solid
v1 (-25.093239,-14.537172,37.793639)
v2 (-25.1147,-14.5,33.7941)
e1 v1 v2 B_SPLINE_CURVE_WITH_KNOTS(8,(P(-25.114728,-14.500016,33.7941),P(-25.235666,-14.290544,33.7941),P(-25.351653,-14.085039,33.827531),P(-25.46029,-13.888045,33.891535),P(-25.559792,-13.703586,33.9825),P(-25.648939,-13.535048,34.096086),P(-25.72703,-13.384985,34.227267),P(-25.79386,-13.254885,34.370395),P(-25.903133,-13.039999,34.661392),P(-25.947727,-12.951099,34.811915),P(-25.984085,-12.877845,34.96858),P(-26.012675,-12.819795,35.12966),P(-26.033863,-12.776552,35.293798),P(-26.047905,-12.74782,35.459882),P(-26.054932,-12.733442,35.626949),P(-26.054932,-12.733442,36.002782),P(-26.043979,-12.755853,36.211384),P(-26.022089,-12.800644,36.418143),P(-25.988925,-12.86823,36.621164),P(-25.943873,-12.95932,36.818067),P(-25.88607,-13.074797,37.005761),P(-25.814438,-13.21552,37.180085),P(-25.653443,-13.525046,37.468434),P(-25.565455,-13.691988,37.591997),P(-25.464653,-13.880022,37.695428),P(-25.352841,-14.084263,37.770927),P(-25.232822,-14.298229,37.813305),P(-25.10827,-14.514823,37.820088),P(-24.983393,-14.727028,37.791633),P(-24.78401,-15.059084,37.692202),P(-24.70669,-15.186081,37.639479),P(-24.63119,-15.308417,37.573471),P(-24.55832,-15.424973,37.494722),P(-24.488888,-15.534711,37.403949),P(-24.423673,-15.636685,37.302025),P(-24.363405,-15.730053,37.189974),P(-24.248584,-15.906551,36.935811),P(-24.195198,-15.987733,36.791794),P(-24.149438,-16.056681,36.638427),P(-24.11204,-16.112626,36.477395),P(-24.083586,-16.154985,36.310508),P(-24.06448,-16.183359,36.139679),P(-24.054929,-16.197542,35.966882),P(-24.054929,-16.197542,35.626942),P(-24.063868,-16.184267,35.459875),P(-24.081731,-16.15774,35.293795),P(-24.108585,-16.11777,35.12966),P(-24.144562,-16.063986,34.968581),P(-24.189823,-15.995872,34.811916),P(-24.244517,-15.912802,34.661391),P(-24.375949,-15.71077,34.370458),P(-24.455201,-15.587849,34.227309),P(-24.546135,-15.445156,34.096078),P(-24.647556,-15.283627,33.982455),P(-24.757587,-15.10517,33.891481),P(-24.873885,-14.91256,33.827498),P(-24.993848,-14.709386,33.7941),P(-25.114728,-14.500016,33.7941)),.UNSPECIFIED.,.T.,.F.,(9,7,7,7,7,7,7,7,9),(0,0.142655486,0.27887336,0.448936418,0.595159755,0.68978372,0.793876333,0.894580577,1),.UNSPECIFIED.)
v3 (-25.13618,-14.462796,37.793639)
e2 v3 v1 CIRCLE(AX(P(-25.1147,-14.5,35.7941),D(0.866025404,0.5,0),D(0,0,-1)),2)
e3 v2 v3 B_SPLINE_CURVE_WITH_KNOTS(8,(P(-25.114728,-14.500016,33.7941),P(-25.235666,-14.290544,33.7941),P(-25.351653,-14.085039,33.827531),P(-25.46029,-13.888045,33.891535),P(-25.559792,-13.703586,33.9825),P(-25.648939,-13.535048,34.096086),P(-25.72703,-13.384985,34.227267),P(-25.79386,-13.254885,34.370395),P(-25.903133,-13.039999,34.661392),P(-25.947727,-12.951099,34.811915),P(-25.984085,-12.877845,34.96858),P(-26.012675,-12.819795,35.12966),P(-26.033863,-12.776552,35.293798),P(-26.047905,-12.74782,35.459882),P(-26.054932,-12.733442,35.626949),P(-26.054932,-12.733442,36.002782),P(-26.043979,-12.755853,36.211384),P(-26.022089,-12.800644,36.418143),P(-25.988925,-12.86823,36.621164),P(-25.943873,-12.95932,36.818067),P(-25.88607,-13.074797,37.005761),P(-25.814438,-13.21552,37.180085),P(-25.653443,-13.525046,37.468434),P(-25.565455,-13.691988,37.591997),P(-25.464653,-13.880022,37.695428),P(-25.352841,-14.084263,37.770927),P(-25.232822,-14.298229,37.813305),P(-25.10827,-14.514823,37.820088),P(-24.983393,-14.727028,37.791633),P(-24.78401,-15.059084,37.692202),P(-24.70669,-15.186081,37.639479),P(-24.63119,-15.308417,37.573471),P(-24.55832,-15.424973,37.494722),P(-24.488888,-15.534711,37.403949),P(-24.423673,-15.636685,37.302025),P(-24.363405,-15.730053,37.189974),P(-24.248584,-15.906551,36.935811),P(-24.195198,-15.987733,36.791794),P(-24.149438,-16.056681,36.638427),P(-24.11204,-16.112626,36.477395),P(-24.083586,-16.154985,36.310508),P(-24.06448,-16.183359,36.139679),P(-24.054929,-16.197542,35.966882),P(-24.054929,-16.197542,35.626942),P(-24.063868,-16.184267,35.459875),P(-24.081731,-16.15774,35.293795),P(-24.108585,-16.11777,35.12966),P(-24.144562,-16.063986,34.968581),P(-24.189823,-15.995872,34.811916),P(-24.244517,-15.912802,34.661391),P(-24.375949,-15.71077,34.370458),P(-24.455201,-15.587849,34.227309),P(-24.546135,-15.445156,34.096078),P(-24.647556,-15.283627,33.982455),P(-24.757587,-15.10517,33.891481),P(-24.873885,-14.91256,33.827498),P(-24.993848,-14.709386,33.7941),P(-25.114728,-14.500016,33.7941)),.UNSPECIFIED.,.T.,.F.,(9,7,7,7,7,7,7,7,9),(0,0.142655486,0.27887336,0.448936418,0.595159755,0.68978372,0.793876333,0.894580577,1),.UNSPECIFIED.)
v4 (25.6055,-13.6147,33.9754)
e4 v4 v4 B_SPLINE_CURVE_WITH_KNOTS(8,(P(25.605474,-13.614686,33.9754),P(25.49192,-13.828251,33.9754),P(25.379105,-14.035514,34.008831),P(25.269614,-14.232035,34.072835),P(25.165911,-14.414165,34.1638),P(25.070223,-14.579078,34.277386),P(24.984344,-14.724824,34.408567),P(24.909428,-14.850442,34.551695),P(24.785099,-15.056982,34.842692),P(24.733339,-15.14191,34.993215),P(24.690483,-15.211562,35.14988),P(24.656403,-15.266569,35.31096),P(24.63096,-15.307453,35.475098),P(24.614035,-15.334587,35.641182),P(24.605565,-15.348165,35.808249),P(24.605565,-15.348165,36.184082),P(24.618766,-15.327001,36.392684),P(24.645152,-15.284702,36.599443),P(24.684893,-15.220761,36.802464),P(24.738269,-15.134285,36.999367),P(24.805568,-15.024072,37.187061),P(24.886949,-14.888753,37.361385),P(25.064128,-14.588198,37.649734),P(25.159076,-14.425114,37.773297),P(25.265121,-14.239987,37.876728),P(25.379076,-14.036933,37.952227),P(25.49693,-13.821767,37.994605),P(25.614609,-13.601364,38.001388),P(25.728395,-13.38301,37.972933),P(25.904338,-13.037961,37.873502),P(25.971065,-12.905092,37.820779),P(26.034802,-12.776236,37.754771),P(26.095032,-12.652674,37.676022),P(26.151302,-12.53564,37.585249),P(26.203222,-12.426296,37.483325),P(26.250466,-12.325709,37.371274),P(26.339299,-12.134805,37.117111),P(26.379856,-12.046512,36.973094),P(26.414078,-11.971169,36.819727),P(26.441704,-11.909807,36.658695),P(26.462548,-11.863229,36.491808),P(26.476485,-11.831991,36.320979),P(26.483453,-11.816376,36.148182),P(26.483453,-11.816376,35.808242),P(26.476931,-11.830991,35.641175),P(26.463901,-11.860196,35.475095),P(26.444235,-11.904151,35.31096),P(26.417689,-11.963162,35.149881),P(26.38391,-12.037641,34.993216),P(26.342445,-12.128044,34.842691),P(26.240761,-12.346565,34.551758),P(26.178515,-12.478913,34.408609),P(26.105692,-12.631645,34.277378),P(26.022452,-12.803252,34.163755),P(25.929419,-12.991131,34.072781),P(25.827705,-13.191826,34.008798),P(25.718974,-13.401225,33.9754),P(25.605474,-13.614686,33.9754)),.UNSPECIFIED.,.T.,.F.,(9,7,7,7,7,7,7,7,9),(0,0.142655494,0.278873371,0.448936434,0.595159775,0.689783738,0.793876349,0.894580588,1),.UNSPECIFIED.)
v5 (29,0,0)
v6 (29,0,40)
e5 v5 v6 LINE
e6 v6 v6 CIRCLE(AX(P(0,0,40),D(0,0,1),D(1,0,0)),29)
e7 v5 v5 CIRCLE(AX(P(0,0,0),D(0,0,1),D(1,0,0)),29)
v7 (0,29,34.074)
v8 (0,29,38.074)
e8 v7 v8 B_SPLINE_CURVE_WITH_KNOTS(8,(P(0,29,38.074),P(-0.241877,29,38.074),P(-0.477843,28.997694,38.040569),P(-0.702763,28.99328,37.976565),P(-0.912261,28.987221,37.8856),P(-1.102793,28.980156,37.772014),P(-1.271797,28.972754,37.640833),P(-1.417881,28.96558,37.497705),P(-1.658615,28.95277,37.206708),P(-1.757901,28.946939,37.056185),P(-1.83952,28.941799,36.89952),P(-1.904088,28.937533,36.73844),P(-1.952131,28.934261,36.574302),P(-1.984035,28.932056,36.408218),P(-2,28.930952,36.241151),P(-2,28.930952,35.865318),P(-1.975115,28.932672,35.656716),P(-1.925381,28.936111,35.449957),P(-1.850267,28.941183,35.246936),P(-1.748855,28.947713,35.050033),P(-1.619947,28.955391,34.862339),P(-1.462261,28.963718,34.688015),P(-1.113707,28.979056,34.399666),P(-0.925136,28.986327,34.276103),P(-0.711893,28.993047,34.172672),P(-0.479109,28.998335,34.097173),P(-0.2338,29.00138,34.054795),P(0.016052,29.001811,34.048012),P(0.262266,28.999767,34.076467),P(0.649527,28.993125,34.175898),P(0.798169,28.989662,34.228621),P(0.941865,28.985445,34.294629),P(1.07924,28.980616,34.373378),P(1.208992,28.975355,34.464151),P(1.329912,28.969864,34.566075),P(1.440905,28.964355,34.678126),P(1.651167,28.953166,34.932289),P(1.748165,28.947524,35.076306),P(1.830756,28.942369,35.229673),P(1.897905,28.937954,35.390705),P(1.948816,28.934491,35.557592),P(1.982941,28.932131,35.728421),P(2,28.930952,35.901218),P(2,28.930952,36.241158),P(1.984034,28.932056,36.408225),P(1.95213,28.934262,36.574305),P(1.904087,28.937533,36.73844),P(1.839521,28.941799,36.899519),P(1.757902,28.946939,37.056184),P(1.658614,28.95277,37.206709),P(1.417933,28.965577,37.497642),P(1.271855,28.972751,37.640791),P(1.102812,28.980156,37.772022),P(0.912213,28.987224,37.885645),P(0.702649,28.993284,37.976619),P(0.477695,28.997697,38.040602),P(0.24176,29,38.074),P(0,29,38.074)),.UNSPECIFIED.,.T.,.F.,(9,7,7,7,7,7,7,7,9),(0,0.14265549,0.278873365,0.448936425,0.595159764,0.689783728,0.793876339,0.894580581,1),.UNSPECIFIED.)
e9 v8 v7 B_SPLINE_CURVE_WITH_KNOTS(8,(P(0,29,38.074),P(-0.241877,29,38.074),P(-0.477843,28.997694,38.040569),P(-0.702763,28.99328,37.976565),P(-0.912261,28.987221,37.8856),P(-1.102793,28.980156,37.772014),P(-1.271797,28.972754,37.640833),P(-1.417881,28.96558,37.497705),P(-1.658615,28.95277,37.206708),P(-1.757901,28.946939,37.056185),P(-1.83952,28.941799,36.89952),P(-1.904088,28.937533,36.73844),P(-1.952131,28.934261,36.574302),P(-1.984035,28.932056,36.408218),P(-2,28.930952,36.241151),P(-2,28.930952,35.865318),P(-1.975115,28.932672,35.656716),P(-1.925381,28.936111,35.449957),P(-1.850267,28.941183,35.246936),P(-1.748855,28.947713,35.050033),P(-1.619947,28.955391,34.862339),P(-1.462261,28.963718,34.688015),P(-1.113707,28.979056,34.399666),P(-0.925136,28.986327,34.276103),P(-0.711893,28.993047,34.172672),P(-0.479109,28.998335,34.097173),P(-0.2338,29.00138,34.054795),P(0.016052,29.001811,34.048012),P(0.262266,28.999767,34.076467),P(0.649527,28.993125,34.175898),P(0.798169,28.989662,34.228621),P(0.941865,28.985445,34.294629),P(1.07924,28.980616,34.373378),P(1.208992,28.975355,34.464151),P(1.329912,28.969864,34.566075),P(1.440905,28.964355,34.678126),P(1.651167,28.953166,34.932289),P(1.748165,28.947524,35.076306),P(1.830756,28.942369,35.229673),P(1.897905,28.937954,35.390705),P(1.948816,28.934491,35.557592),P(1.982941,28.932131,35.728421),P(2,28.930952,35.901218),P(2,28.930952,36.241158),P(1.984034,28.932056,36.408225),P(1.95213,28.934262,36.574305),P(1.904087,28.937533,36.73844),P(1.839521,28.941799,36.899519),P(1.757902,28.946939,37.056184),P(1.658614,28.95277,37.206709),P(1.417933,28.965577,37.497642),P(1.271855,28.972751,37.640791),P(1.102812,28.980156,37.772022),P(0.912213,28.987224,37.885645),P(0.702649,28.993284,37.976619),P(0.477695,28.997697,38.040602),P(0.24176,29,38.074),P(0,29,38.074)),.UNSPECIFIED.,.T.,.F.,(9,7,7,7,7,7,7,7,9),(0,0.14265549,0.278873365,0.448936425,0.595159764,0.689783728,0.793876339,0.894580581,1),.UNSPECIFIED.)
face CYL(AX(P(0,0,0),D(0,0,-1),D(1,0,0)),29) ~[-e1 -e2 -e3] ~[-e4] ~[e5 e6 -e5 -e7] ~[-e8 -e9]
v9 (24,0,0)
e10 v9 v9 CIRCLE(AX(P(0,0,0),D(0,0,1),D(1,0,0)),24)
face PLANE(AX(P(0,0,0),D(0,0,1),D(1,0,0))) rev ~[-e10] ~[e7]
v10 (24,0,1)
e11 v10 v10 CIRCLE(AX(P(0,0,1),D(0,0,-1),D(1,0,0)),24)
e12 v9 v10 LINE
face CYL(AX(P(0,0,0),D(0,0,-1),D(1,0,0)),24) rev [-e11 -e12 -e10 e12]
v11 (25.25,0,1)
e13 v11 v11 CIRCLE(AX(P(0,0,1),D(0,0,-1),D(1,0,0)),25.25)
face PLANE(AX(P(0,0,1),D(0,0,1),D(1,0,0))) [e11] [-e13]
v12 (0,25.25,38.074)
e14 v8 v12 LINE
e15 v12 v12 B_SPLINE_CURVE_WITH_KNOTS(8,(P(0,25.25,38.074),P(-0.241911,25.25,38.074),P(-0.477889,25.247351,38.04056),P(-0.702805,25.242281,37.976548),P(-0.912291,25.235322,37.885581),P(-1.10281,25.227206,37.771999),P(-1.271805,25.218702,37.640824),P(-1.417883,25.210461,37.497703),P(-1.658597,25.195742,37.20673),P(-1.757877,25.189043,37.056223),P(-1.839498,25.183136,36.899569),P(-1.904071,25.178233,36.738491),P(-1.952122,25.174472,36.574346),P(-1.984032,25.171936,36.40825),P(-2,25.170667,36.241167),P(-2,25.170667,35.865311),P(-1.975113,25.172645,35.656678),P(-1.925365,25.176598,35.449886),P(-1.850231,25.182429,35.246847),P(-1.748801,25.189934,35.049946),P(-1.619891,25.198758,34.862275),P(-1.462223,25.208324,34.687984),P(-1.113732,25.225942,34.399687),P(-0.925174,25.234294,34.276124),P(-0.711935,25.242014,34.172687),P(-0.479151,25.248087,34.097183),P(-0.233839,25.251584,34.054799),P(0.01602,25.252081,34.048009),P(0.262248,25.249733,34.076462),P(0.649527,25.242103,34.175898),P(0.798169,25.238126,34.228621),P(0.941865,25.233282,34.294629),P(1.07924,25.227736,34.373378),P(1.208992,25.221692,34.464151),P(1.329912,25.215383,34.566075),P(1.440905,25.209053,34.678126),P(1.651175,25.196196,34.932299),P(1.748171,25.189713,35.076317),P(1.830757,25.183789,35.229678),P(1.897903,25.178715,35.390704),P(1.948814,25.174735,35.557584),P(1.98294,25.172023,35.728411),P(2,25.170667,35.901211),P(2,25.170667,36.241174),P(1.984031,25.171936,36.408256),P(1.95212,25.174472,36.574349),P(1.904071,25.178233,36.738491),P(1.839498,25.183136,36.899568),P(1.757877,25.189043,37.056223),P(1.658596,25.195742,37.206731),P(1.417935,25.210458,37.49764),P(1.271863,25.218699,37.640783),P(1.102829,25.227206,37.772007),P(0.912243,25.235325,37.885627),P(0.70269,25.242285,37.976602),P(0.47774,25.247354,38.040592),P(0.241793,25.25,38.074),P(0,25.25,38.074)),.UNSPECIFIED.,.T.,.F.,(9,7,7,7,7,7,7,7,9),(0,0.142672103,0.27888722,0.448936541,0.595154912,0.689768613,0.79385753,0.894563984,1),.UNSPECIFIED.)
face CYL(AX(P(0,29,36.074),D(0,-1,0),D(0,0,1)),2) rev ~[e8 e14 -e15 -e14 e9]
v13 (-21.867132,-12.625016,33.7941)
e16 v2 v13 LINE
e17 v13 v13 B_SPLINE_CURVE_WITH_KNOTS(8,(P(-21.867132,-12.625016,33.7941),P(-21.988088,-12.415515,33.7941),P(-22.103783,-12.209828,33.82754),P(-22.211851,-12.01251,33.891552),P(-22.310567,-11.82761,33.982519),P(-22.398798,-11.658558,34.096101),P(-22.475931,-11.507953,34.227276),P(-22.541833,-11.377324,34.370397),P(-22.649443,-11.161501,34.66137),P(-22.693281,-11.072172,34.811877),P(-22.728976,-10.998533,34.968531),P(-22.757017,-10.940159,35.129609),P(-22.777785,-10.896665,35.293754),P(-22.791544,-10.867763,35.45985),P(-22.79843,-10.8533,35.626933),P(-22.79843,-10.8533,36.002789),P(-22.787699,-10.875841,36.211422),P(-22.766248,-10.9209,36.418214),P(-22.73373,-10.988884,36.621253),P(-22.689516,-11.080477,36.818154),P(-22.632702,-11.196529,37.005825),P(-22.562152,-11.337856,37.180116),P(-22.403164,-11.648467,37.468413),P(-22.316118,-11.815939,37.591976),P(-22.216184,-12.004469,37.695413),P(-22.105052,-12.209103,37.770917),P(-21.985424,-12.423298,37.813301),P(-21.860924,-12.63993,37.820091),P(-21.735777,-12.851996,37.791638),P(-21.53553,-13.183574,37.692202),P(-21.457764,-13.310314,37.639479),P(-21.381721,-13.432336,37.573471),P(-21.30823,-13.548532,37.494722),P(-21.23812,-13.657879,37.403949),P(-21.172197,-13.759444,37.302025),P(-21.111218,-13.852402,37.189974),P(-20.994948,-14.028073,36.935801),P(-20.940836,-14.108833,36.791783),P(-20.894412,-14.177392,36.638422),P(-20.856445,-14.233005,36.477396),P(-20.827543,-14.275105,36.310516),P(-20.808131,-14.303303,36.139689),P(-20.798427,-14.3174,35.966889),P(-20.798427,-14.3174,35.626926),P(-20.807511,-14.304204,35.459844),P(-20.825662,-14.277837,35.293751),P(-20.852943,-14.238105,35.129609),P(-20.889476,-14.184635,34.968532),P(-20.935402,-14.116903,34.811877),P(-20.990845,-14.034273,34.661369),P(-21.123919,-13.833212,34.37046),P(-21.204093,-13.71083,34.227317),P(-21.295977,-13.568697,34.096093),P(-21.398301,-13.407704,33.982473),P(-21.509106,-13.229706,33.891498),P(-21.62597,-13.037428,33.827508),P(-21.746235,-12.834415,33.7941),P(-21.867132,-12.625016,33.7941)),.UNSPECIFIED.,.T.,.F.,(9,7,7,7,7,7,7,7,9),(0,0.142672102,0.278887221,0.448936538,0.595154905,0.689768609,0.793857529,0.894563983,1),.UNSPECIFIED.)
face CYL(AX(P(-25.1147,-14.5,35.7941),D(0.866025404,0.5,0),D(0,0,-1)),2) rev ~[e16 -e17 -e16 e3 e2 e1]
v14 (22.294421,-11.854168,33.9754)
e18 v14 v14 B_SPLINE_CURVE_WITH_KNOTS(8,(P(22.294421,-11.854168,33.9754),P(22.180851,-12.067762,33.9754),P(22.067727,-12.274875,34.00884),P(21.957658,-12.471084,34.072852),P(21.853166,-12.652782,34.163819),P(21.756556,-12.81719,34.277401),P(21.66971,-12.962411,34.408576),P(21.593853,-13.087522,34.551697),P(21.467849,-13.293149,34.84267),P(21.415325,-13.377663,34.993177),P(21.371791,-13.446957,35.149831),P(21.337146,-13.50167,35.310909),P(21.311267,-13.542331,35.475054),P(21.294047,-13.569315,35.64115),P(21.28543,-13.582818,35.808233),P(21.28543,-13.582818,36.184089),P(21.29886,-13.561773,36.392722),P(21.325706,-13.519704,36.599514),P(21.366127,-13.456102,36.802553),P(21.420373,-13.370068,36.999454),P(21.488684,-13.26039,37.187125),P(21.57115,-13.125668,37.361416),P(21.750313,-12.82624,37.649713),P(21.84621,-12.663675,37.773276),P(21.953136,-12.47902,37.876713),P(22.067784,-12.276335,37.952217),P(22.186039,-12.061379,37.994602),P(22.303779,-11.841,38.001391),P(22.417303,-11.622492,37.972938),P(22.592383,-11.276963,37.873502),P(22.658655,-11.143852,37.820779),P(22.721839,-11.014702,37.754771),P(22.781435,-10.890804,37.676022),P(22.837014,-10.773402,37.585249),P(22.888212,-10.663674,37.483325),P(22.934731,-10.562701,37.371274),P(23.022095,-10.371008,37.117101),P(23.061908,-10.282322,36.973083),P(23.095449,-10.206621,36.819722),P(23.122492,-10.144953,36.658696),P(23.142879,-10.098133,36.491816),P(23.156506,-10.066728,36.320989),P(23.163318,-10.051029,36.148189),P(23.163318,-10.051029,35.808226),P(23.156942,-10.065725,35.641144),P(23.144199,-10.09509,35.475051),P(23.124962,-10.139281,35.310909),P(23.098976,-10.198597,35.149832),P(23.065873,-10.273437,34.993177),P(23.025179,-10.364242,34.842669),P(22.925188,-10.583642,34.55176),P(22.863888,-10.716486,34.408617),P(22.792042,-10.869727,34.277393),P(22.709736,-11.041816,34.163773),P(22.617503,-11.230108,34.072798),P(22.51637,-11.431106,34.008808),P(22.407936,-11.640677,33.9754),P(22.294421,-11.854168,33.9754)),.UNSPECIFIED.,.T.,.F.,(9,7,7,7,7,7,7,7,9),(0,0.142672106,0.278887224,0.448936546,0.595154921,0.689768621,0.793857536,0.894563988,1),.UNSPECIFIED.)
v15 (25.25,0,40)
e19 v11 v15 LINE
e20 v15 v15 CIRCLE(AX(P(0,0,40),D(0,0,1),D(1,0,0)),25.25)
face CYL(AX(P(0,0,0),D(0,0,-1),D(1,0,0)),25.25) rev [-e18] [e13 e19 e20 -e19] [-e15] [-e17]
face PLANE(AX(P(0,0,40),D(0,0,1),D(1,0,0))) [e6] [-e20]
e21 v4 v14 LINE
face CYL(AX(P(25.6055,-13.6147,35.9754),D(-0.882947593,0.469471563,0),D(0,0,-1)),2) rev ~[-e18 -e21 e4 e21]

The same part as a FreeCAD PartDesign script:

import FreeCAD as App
import Part
import Sketcher

V = App.Vector
Q = App.Units.Quantity

doc = App.newDocument("Part")
body = doc.addObject("PartDesign::Body", "Body")

# Sketch on XY plane
sketch1 = body.newObject("Sketcher::SketchObject", "Sketch")
sketch1.AttachmentSupport = (doc.getObject("XY_Plane"), [""])
sketch1.MapMode = "FlatFace"
sketch1.addGeometry(Part.Circle(V(0, 0, 0), V(0, 0, 1), 25), False)
sketch1.addGeometry(Part.Circle(V(0, 0, 0), V(0, 0, 1), 24), False)
sketch1.addConstraint(Sketcher.Constraint("Coincident", 0, 3, -1, 1))
sketch1.addConstraint(Sketcher.Constraint("Coincident", 1, 3, -1, 1))
sketch1.addConstraint(Sketcher.Constraint("Diameter", 1, Q("48 mm")))
sketch1.addConstraint(Sketcher.Constraint("Diameter", 0, Q("50.5 mm")))
pad1 = body.newObject("PartDesign::Pad", "Pad")
pad1.Profile = sketch1
pad1.Length = 1

# Sketch on XY plane
sketch2 = body.newObject("Sketcher::SketchObject", "Sketch001")
sketch2.AttachmentSupport = (doc.getObject("XY_Plane"), [""])
sketch2.MapMode = "FlatFace"
sketch2.addGeometry(Part.Circle(V(0, 0, 0), V(0, 0, 1), 29), False)
sketch2.addGeometry(Part.Circle(V(0, 0, 0), V(0, 0, 1), 25), False)
sketch2.addConstraint(Sketcher.Constraint("Coincident", 0, 3, -1, 1))
sketch2.addConstraint(Sketcher.Constraint("Coincident", 1, 3, -1, 1))
sketch2.addConstraint(Sketcher.Constraint("Diameter", 0, Q("58 mm")))
sketch2.addConstraint(Sketcher.Constraint("Diameter", 1, Q("50.5 mm")))
pad2 = body.newObject("PartDesign::Pad", "Pad001")
pad2.Profile = sketch2
pad2.Length = 40

# Sketch on an angled plane
sketch3 = body.newObject("Sketcher::SketchObject", "Sketch002")
sketch3.Placement = App.Placement(V(25.605506, -13.614689, 0), App.Rotation(V(0.469471563, 0.882947593, 0), V(0, 0, 1), V(0.882947593, -0.469471563, 0), "ZXY"))
sketch3.addGeometry(Part.Circle(V(0, 36, 0), V(0, 0, 1), 2), False)
sketch3.addConstraint(Sketcher.Constraint("PointOnObject", 0, 3, -2))
sketch3.addConstraint(Sketcher.Constraint("Diameter", 0, Q("4 mm")))
sketch3.addConstraint(Sketcher.Constraint("DistanceY", -1, 1, 0, 3, Q("35.9754 mm")))
doc.recompute()
hole = body.newObject("PartDesign::Hole", "Hole")
hole.Profile = sketch3
hole.ThreadType = "None"
hole.Diameter = 4
hole.DepthType = "Dimension"
hole.Depth = 5
hole.DrillPoint = "Flat"

# Sketch on an angled plane
sketch4 = body.newObject("Sketcher::SketchObject", "Sketch003")
sketch4.Placement = App.Placement(V(-25.114709, -14.499984, 0), App.Rotation(V(0.5, -0.866025404, 0), V(0, 0, 1), V(-0.866025404, -0.5, 0), "ZXY"))
sketch4.addGeometry(Part.Circle(V(0, 35.8, 0), V(0, 0, 1), 2), False)
sketch4.addConstraint(Sketcher.Constraint("PointOnObject", 0, 3, -2))
sketch4.addConstraint(Sketcher.Constraint("Diameter", 0, Q("4 mm")))
sketch4.addConstraint(Sketcher.Constraint("DistanceY", -1, 1, 0, 3, Q("35.794 mm")))
doc.recompute()
hole2 = body.newObject("PartDesign::Hole", "Hole001")
hole2.Profile = sketch4
hole2.ThreadType = "None"
hole2.Diameter = 4
hole2.DepthType = "Dimension"
hole2.Depth = 5
hole2.DrillPoint = "Flat"

# Sketch on XZ plane
sketch5 = body.newObject("Sketcher::SketchObject", "Sketch004")
sketch5.AttachmentSupport = (doc.getObject("XZ_Plane"), [""])
sketch5.MapMode = "FlatFace"
sketch5.AttachmentOffset = App.Placement(V(0, 0, -29), App.Rotation())
sketch5.addGeometry(Part.Circle(V(0, 36.1, 0), V(0, 0, 1), 2), False)
sketch5.addConstraint(Sketcher.Constraint("PointOnObject", 0, 3, -2))
sketch5.addConstraint(Sketcher.Constraint("Diameter", 0, Q("4 mm")))
sketch5.addConstraint(Sketcher.Constraint("DistanceY", -1, 1, 0, 3, Q("36.074 mm")))
doc.recompute()
hole3 = body.newObject("PartDesign::Hole", "Hole002")
hole3.Profile = sketch5
hole3.ThreadType = "None"
hole3.Diameter = 4
hole3.DepthType = "Dimension"
hole3.Depth = 5
hole3.DrillPoint = "Flat"
hole3.Reversed = True

doc.recompute()
